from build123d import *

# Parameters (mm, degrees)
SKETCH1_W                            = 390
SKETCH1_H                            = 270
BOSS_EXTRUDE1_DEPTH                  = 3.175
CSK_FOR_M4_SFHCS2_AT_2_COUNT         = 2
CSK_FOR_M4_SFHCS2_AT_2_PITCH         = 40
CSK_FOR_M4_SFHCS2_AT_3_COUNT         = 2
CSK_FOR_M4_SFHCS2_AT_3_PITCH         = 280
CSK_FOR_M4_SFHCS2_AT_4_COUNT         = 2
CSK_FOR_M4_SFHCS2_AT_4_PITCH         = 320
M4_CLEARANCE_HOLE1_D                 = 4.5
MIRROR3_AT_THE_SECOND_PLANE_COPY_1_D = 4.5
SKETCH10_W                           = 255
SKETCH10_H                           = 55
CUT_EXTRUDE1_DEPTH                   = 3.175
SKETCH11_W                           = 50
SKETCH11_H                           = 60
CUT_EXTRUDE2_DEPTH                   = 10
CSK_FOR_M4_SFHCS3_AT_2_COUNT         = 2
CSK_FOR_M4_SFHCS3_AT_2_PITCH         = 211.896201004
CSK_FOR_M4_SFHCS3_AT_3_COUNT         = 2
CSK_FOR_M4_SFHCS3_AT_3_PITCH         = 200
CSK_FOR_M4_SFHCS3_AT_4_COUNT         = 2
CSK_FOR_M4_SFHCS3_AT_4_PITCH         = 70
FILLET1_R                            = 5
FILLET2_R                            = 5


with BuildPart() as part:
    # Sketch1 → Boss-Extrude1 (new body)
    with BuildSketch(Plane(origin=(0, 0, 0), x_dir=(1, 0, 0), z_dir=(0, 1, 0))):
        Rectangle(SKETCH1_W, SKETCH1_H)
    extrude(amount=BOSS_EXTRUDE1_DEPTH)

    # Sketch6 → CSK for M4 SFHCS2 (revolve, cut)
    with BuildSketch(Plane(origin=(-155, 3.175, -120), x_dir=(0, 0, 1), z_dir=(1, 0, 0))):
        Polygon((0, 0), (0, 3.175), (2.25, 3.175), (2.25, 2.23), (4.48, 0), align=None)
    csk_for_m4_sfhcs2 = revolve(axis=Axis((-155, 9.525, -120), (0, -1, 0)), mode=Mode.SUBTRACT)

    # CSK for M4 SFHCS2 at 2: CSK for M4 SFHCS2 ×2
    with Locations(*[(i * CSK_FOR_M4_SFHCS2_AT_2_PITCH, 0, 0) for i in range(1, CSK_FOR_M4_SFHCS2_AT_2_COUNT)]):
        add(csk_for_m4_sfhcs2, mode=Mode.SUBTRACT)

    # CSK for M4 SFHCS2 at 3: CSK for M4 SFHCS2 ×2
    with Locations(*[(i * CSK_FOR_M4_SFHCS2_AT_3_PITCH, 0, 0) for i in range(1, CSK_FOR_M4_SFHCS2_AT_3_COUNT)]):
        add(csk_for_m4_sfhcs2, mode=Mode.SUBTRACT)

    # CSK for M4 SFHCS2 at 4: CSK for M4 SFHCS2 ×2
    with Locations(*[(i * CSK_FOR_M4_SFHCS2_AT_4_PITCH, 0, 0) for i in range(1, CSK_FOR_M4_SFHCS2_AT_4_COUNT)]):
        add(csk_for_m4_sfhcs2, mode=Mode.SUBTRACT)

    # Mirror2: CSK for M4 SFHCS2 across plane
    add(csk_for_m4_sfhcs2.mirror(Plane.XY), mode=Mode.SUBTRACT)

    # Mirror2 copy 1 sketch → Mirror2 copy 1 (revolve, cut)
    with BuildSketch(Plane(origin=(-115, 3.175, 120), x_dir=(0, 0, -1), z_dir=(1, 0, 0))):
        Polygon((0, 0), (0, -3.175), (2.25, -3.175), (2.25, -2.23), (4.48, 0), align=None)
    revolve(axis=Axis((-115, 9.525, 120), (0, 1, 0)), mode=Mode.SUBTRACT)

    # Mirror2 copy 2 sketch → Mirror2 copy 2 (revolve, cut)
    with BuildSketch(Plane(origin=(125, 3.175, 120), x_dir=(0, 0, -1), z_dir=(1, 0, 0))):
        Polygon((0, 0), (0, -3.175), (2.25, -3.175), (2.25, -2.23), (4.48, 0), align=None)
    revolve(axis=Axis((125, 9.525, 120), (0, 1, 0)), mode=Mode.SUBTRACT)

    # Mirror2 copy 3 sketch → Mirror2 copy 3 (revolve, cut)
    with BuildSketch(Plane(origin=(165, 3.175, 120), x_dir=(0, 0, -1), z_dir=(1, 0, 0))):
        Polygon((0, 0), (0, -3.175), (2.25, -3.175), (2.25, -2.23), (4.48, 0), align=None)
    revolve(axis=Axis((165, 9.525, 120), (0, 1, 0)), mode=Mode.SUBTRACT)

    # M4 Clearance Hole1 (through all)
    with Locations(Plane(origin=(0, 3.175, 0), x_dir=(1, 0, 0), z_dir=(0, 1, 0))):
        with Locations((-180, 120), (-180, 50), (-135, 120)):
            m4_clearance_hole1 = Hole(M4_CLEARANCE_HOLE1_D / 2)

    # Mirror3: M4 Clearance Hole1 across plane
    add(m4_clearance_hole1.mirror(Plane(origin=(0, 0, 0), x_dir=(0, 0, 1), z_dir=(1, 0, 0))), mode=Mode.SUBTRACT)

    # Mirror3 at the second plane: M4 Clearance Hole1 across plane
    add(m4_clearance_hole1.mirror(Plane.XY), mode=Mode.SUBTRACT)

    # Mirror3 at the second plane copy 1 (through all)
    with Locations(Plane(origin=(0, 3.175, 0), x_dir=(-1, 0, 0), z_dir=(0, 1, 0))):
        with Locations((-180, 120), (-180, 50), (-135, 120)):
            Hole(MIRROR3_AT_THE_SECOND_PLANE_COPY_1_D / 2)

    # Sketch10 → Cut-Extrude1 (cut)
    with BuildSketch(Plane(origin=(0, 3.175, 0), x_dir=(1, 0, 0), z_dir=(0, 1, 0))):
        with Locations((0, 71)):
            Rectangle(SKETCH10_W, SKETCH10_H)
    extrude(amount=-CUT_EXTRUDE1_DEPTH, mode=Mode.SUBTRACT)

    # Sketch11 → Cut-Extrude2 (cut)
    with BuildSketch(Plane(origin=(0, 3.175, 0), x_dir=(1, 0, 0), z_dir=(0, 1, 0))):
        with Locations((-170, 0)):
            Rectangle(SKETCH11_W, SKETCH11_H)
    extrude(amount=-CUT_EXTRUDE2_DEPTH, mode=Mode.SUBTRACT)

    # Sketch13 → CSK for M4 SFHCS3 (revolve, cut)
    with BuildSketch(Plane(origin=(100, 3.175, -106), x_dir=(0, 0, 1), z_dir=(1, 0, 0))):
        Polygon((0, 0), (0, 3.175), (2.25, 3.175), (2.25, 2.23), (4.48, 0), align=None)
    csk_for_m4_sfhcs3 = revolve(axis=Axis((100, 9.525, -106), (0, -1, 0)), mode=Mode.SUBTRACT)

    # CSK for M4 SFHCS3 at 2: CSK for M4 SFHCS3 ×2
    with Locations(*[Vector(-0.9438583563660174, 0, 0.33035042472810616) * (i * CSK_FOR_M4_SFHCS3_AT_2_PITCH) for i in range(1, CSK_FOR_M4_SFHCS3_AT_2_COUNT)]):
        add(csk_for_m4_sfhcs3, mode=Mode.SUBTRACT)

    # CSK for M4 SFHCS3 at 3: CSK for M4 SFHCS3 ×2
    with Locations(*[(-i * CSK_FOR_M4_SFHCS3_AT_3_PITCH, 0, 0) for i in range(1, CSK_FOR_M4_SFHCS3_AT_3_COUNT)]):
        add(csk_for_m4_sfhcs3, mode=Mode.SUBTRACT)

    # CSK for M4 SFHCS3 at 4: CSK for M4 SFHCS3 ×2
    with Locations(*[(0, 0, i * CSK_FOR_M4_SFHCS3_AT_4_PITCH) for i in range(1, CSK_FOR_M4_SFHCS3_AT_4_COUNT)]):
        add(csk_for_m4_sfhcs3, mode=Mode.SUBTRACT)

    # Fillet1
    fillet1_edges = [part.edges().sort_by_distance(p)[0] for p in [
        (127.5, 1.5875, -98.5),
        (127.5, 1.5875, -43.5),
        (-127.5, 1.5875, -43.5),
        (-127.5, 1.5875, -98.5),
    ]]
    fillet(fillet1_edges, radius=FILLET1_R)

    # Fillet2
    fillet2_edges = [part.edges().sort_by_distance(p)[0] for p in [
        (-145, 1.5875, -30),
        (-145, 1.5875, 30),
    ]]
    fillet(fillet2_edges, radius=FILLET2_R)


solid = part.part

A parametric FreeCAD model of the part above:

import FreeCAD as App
import Part
import Sketcher

V = App.Vector
Q = App.Units.Quantity


def edges_at(feature, points):
    """Names of the edges that pass closest to the given points."""
    edges = feature.Shape.Edges
    near = lambda p: min(range(len(edges)), key=lambda i: edges[i].distToShape(Part.Vertex(*p))[0])
    return sorted({f"Edge{near(p) + 1}" for p in points})


def add_polygon(sketch, points):
    """Adds a closed chain of lines whose ends are joined by coincident constraints."""
    first, n = sketch.GeometryCount, len(points)
    for a, b in zip(points, points[1:] + points[:1]):
        sketch.addGeometry(Part.LineSegment(App.Vector(*a, 0), App.Vector(*b, 0)), False)
    for i in range(n):
        sketch.addConstraint(Sketcher.Constraint("Coincident", first + i, 2, first + (i + 1) % n, 1))

doc = App.newDocument("Part")
body = doc.addObject("PartDesign::Body", "Body")

sketch1 = body.newObject("Sketcher::SketchObject", "Sketch")
sketch1.AttachmentSupport = (doc.getObject("XZ_Plane"), [""])
sketch1.MapMode = "FlatFace"
add_polygon(sketch1, [(-195, -135), (-195, 135), (195, 135), (195, -135)])
sketch1.addConstraint([
    Sketcher.Constraint("Vertical", 0),
    Sketcher.Constraint("Horizontal", 1),
    Sketcher.Constraint("Vertical", 2),
    Sketcher.Constraint("Horizontal", 3),
    Sketcher.Constraint("Symmetric", 0, 2, 2, 2, -1, 1),
    Sketcher.Constraint("DistanceX", 1, 1, 1, 2, Q("390 mm")),
    Sketcher.Constraint("DistanceY", 0, 1, 0, 2, Q("270 mm")),
])
pad1 = body.newObject("PartDesign::Pad", "Pad")
pad1.Profile = sketch1
pad1.Length = 3.175
pad1.Reversed = True

sketch2 = body.newObject("Sketcher::SketchObject", "Sketch001")
sketch2.AttachmentSupport = (doc.getObject("YZ_Plane"), [""])
sketch2.MapMode = "FlatFace"
sketch2.AttachmentOffset = App.Placement(V(0, 0, -155), App.Rotation())
add_polygon(sketch2, [(0, -120), (3.175, -120), (3.175, -115.52), (0.945, -117.75), (0, -117.75)])
sketch2.addGeometry(Part.LineSegment(V(3.175, -120, 0), V(0, -120, 0)), True)
sketch2.addConstraint([
    Sketcher.Constraint("Horizontal", 0),
    Sketcher.Constraint("Vertical", 1),
    Sketcher.Constraint("Horizontal", 3),
    Sketcher.Constraint("Vertical", 4),
    Sketcher.Constraint("Horizontal", 5),
    Sketcher.Constraint("Coincident", 5, 1, 0, 2),
    Sketcher.Constraint("PointOnObject", 3, 2, -2),
    Sketcher.Constraint("PointOnObject", 5, 2, -2),
    Sketcher.Constraint("Angle", 2, Q("-135 deg")),
    Sketcher.Constraint("DistanceY", 0, 2, -1, 1, Q("120 mm")),
    Sketcher.Constraint("DistanceY", 1, 1, 1, 2, Q("4.48 mm")),
    Sketcher.Constraint("DistanceY", 4, 2, 4, 1, Q("2.25 mm")),
    Sketcher.Constraint("DistanceX", 0, 1, 0, 2, Q("3.175 mm")),
])
groove = body.newObject("PartDesign::Groove", "Groove")
groove.Profile = sketch2
groove.ReferenceAxis = (sketch2, ["Axis0"])
groove.Angle = 360
doc.recompute()

linearpattern = body.newObject("PartDesign::LinearPattern", "LinearPattern")
linearpattern.Originals = [groove]
linearpattern.Direction = (doc.getObject("X_Axis"), [""])
linearpattern.Mode = "offset"
linearpattern.Offset = 40
linearpattern.Occurrences = 2
body.Tip = linearpattern
doc.recompute()

linearpattern2 = body.newObject("PartDesign::LinearPattern", "LinearPattern001")
linearpattern2.Originals = [groove]
linearpattern2.Direction = (doc.getObject("X_Axis"), [""])
linearpattern2.Mode = "offset"
linearpattern2.Offset = 280
linearpattern2.Occurrences = 2
body.Tip = linearpattern2
doc.recompute()

linearpattern3 = body.newObject("PartDesign::LinearPattern", "LinearPattern002")
linearpattern3.Originals = [groove]
linearpattern3.Direction = (doc.getObject("X_Axis"), [""])
linearpattern3.Mode = "offset"
linearpattern3.Offset = 320
linearpattern3.Occurrences = 2
body.Tip = linearpattern3
doc.recompute()

mirrored = body.newObject("PartDesign::Mirrored", "Mirrored")
mirrored.Originals = [groove]
mirrored.MirrorPlane = (doc.getObject("XY_Plane"), [""])
body.Tip = mirrored

sketch3 = body.newObject("Sketcher::SketchObject", "Sketch002")
sketch3.AttachmentSupport = (doc.getObject("YZ_Plane"), [""])
sketch3.MapMode = "FlatFace"
sketch3.AttachmentOffset = App.Placement(V(0, 0, -115), App.Rotation())
add_polygon(sketch3, [(3.175, 120), (0, 120), (0, 117.75), (0.945, 117.75), (3.175, 115.52)])
sketch3.addGeometry(Part.LineSegment(V(0, 120, 0), V(3.175, 120, 0)), True)
sketch3.addConstraint([
    Sketcher.Constraint("Horizontal", 0),
    Sketcher.Constraint("Vertical", 1),
    Sketcher.Constraint("Horizontal", 2),
    Sketcher.Constraint("Vertical", 4),
    Sketcher.Constraint("Horizontal", 5),
    Sketcher.Constraint("Coincident", 5, 1, 0, 2),
    Sketcher.Constraint("PointOnObject", 0, 2, -2),
    Sketcher.Constraint("Vertical", 3, 2, 5, 2),
    Sketcher.Constraint("Angle", 3, Q("-45 deg")),
    Sketcher.Constraint("DistanceY", -1, 1, 0, 2, Q("120 mm")),
    Sketcher.Constraint("DistanceY", 1, 2, 1, 1, Q("2.25 mm")),
    Sketcher.Constraint("DistanceY", 4, 1, 4, 2, Q("4.48 mm")),
    Sketcher.Constraint("DistanceX", 0, 2, 0, 1, Q("3.175 mm")),
])
groove2 = body.newObject("PartDesign::Groove", "Groove001")
groove2.Profile = sketch3
groove2.ReferenceAxis = (sketch3, ["Axis0"])
groove2.Angle = 360

sketch4 = body.newObject("Sketcher::SketchObject", "Sketch003")
sketch4.AttachmentSupport = (doc.getObject("YZ_Plane"), [""])
sketch4.MapMode = "FlatFace"
sketch4.AttachmentOffset = App.Placement(V(0, 0, 125), App.Rotation())
add_polygon(sketch4, [(3.175, 120), (0, 120), (0, 117.75), (0.945, 117.75), (3.175, 115.52)])
sketch4.addGeometry(Part.LineSegment(V(0, 120, 0), V(3.175, 120, 0)), True)
sketch4.addConstraint([
    Sketcher.Constraint("Horizontal", 0),
    Sketcher.Constraint("Vertical", 1),
    Sketcher.Constraint("Horizontal", 2),
    Sketcher.Constraint("Vertical", 4),
    Sketcher.Constraint("Horizontal", 5),
    Sketcher.Constraint("Coincident", 5, 1, 0, 2),
    Sketcher.Constraint("PointOnObject", 0, 2, -2),
    Sketcher.Constraint("Vertical", 3, 2, 5, 2),
    Sketcher.Constraint("Angle", 3, Q("-45 deg")),
    Sketcher.Constraint("DistanceY", -1, 1, 0, 2, Q("120 mm")),
    Sketcher.Constraint("DistanceY", 1, 2, 1, 1, Q("2.25 mm")),
    Sketcher.Constraint("DistanceY", 4, 1, 4, 2, Q("4.48 mm")),
    Sketcher.Constraint("DistanceX", 0, 2, 0, 1, Q("3.175 mm")),
])
groove3 = body.newObject("PartDesign::Groove", "Groove002")
groove3.Profile = sketch4
groove3.ReferenceAxis = (sketch4, ["Axis0"])
groove3.Angle = 360

sketch5 = body.newObject("Sketcher::SketchObject", "Sketch004")
sketch5.AttachmentSupport = (doc.getObject("YZ_Plane"), [""])
sketch5.MapMode = "FlatFace"
sketch5.AttachmentOffset = App.Placement(V(0, 0, 165), App.Rotation())
add_polygon(sketch5, [(3.175, 120), (0, 120), (0, 117.75), (0.945, 117.75), (3.175, 115.52)])
sketch5.addGeometry(Part.LineSegment(V(0, 120, 0), V(3.175, 120, 0)), True)
sketch5.addConstraint([
    Sketcher.Constraint("Horizontal", 0),
    Sketcher.Constraint("Vertical", 1),
    Sketcher.Constraint("Horizontal", 2),
    Sketcher.Constraint("Vertical", 4),
    Sketcher.Constraint("Horizontal", 5),
    Sketcher.Constraint("Coincident", 5, 1, 0, 2),
    Sketcher.Constraint("PointOnObject", 0, 2, -2),
    Sketcher.Constraint("Vertical", 3, 2, 5, 2),
    Sketcher.Constraint("Angle", 3, Q("-45 deg")),
    Sketcher.Constraint("DistanceY", -1, 1, 0, 2, Q("120 mm")),
    Sketcher.Constraint("DistanceY", 1, 2, 1, 1, Q("2.25 mm")),
    Sketcher.Constraint("DistanceY", 4, 1, 4, 2, Q("4.48 mm")),
    Sketcher.Constraint("DistanceX", 0, 2, 0, 1, Q("3.175 mm")),
])
groove4 = body.newObject("PartDesign::Groove", "Groove003")
groove4.Profile = sketch5
groove4.ReferenceAxis = (sketch5, ["Axis0"])
groove4.Angle = 360

sketch6 = body.newObject("Sketcher::SketchObject", "Sketch005")
sketch6.AttachmentSupport = (doc.getObject("XZ_Plane"), [""])
sketch6.MapMode = "FlatFace"
sketch6.AttachmentOffset = App.Placement(V(0, 0, -3.175), App.Rotation())
sketch6.addGeometry([
    Part.Circle(V(-180, -120, 0), V(0, 0, 1), 2.25),
    Part.Circle(V(-180, -50, 0), V(0, 0, 1), 2.25),
    Part.Circle(V(-135, -120, 0), V(0, 0, 1), 2.25),
], False)
sketch6.addConstraint([
    Sketcher.Constraint("Equal", 0, 1),
    Sketcher.Constraint("Equal", 1, 2),
    Sketcher.Constraint("Horizontal", 0, 3, 2, 3),
    Sketcher.Constraint("Vertical", 0, 3, 1, 3),
    Sketcher.Constraint("Diameter", 0, Q("4.5 mm")),
    Sketcher.Constraint("DistanceX", 0, 3, -1, 1, Q("180 mm")),
    Sketcher.Constraint("DistanceY", 0, 3, -1, 1, Q("120 mm")),
    Sketcher.Constraint("DistanceY", 1, 3, -1, 1, Q("50 mm")),
    Sketcher.Constraint("DistanceX", 2, 3, -1, 1, Q("135 mm")),
])
doc.recompute()
hole = body.newObject("PartDesign::Hole", "Hole")
hole.Profile = sketch6
hole.ThreadType = "None"
hole.Diameter = 4.5
hole.DepthType = "ThroughAll"
hole.Reversed = True
doc.recompute()

mirrored2 = body.newObject("PartDesign::Mirrored", "Mirrored001")
mirrored2.Originals = [hole]
mirrored2.MirrorPlane = (doc.getObject("YZ_Plane"), [""])
body.Tip = mirrored2
doc.recompute()

mirrored3 = body.newObject("PartDesign::Mirrored", "Mirrored002")
mirrored3.Originals = [hole]
mirrored3.MirrorPlane = (doc.getObject("XY_Plane"), [""])
body.Tip = mirrored3

sketch7 = body.newObject("Sketcher::SketchObject", "Sketch006")
sketch7.AttachmentSupport = (doc.getObject("XZ_Plane"), [""])
sketch7.MapMode = "FlatFace"
sketch7.AttachmentOffset = App.Placement(V(0, 0, -3.175), App.Rotation())
sketch7.addGeometry([
    Part.Circle(V(180, 120, 0), V(0, 0, 1), 2.25),
    Part.Circle(V(180, 50, 0), V(0, 0, 1), 2.25),
    Part.Circle(V(135, 120, 0), V(0, 0, 1), 2.25),
], False)
sketch7.addConstraint([
    Sketcher.Constraint("Equal", 0, 1),
    Sketcher.Constraint("Equal", 1, 2),
    Sketcher.Constraint("Horizontal", 0, 3, 2, 3),
    Sketcher.Constraint("Vertical", 0, 3, 1, 3),
    Sketcher.Constraint("Diameter", 0, Q("4.5 mm")),
    Sketcher.Constraint("DistanceX", -1, 1, 0, 3, Q("180 mm")),
    Sketcher.Constraint("DistanceY", -1, 1, 0, 3, Q("120 mm")),
    Sketcher.Constraint("DistanceY", -1, 1, 1, 3, Q("50 mm")),
    Sketcher.Constraint("DistanceX", -1, 1, 2, 3, Q("135 mm")),
])
doc.recompute()
hole2 = body.newObject("PartDesign::Hole", "Hole001")
hole2.Profile = sketch7
hole2.ThreadType = "None"
hole2.Diameter = 4.5
hole2.DepthType = "ThroughAll"
hole2.Reversed = True

sketch8 = body.newObject("Sketcher::SketchObject", "Sketch007")
sketch8.AttachmentSupport = (doc.getObject("XZ_Plane"), [""])
sketch8.MapMode = "FlatFace"
sketch8.AttachmentOffset = App.Placement(V(0, 0, -3.175), App.Rotation())
add_polygon(sketch8, [(-127.5, -98.5), (-127.5, -43.5), (127.5, -43.5), (127.5, -98.5)])
sketch8.addConstraint([
    Sketcher.Constraint("Vertical", 0),
    Sketcher.Constraint("Horizontal", 1),
    Sketcher.Constraint("Vertical", 2),
    Sketcher.Constraint("Horizontal", 3),
    Sketcher.Constraint("DistanceX", 1, 1, 1, 2, Q("255 mm")),
    Sketcher.Constraint("DistanceY", 0, 1, 0, 2, Q("55 mm")),
    Sketcher.Constraint("DistanceX", 0, 2, -1, 1, Q("127.5 mm")),
    Sketcher.Constraint("DistanceY", 0, 2, -1, 1, Q("43.5 mm")),
])
pocket1 = body.newObject("PartDesign::Pocket", "Pocket")
pocket1.Profile = sketch8
pocket1.Length = 3.175
pocket1.Reversed = True

sketch9 = body.newObject("Sketcher::SketchObject", "Sketch008")
sketch9.AttachmentSupport = (doc.getObject("XZ_Plane"), [""])
sketch9.MapMode = "FlatFace"
sketch9.AttachmentOffset = App.Placement(V(0, 0, -3.175), App.Rotation())
add_polygon(sketch9, [(-195, -30), (-195, 30), (-145, 30), (-145, -30)])
sketch9.addConstraint([
    Sketcher.Constraint("Vertical", 0),
    Sketcher.Constraint("Horizontal", 1),
    Sketcher.Constraint("Vertical", 2),
    Sketcher.Constraint("Horizontal", 3),
    Sketcher.Constraint("DistanceX", 1, 1, 1, 2, Q("50 mm")),
    Sketcher.Constraint("DistanceY", 0, 1, 0, 2, Q("60 mm")),
    Sketcher.Constraint("DistanceX", 0, 2, -1, 1, Q("195 mm")),
    Sketcher.Constraint("DistanceY", -1, 1, 0, 2, Q("30 mm")),
])
pocket2 = body.newObject("PartDesign::Pocket", "Pocket001")
pocket2.Profile = sketch9
pocket2.Length = 10
pocket2.Reversed = True

sketch10 = body.newObject("Sketcher::SketchObject", "Sketch009")
sketch10.AttachmentSupport = (doc.getObject("YZ_Plane"), [""])
sketch10.MapMode = "FlatFace"
sketch10.AttachmentOffset = App.Placement(V(0, 0, 100), App.Rotation())
add_polygon(sketch10, [(0, -106), (3.175, -106), (3.175, -101.52), (0.945, -103.75), (0, -103.75)])
sketch10.addGeometry(Part.LineSegment(V(3.175, -106, 0), V(0, -106, 0)), True)
sketch10.addConstraint([
    Sketcher.Constraint("Horizontal", 0),
    Sketcher.Constraint("Vertical", 1),
    Sketcher.Constraint("Horizontal", 3),
    Sketcher.Constraint("Vertical", 4),
    Sketcher.Constraint("Horizontal", 5),
    Sketcher.Constraint("Coincident", 5, 1, 0, 2),
    Sketcher.Constraint("PointOnObject", 3, 2, -2),
    Sketcher.Constraint("PointOnObject", 5, 2, -2),
    Sketcher.Constraint("Angle", 2, Q("-135 deg")),
    Sketcher.Constraint("DistanceY", 0, 2, -1, 1, Q("106 mm")),
    Sketcher.Constraint("DistanceY", 1, 1, 1, 2, Q("4.48 mm")),
    Sketcher.Constraint("DistanceY", 4, 2, 4, 1, Q("2.25 mm")),
    Sketcher.Constraint("DistanceX", 0, 1, 0, 2, Q("3.175 mm")),
])
groove5 = body.newObject("PartDesign::Groove", "Groove004")
groove5.Profile = sketch10
groove5.ReferenceAxis = (sketch10, ["Axis0"])
groove5.Angle = 360
doc.recompute()

datumline = body.newObject("PartDesign::Line", "DatumLine")
datumline.Placement = App.Placement(V(0, 0, 0), App.Rotation(V(0, 0, 1), V(-0.943858356, 0, 0.330350425)))
linearpattern4 = body.newObject("PartDesign::LinearPattern", "LinearPattern003")
linearpattern4.Originals = [groove5]
linearpattern4.Direction = (datumline, [""])
linearpattern4.Mode = "offset"
linearpattern4.Offset = 211.896201
linearpattern4.Occurrences = 2
body.Tip = linearpattern4
doc.recompute()

linearpattern5 = body.newObject("PartDesign::LinearPattern", "LinearPattern004")
linearpattern5.Originals = [groove5]
linearpattern5.Direction = (doc.getObject("X_Axis"), [""])
linearpattern5.Mode = "offset"
linearpattern5.Offset = 200
linearpattern5.Occurrences = 2
linearpattern5.Reversed = True
body.Tip = linearpattern5
doc.recompute()

linearpattern6 = body.newObject("PartDesign::LinearPattern", "LinearPattern005")
linearpattern6.Originals = [groove5]
linearpattern6.Direction = (doc.getObject("Z_Axis"), [""])
linearpattern6.Mode = "offset"
linearpattern6.Offset = 70
linearpattern6.Occurrences = 2
body.Tip = linearpattern6
doc.recompute()

fillet = body.newObject("PartDesign::Fillet", "Fillet")
fillet.Base = (linearpattern6, edges_at(linearpattern6, [
    (127.5, 1.587, -98.5),
    (127.5, 1.587, -43.5),
    (-127.5, 1.587, -43.5),
    (-127.5, 1.587, -98.5),
]))
fillet.Radius = 5
doc.recompute()

fillet2 = body.newObject("PartDesign::Fillet", "Fillet001")
fillet2.Base = (fillet, edges_at(fillet, [(-145, 1.587, -30), (-145, 1.587, 30)]))
fillet2.Radius = 5

doc.recompute()
